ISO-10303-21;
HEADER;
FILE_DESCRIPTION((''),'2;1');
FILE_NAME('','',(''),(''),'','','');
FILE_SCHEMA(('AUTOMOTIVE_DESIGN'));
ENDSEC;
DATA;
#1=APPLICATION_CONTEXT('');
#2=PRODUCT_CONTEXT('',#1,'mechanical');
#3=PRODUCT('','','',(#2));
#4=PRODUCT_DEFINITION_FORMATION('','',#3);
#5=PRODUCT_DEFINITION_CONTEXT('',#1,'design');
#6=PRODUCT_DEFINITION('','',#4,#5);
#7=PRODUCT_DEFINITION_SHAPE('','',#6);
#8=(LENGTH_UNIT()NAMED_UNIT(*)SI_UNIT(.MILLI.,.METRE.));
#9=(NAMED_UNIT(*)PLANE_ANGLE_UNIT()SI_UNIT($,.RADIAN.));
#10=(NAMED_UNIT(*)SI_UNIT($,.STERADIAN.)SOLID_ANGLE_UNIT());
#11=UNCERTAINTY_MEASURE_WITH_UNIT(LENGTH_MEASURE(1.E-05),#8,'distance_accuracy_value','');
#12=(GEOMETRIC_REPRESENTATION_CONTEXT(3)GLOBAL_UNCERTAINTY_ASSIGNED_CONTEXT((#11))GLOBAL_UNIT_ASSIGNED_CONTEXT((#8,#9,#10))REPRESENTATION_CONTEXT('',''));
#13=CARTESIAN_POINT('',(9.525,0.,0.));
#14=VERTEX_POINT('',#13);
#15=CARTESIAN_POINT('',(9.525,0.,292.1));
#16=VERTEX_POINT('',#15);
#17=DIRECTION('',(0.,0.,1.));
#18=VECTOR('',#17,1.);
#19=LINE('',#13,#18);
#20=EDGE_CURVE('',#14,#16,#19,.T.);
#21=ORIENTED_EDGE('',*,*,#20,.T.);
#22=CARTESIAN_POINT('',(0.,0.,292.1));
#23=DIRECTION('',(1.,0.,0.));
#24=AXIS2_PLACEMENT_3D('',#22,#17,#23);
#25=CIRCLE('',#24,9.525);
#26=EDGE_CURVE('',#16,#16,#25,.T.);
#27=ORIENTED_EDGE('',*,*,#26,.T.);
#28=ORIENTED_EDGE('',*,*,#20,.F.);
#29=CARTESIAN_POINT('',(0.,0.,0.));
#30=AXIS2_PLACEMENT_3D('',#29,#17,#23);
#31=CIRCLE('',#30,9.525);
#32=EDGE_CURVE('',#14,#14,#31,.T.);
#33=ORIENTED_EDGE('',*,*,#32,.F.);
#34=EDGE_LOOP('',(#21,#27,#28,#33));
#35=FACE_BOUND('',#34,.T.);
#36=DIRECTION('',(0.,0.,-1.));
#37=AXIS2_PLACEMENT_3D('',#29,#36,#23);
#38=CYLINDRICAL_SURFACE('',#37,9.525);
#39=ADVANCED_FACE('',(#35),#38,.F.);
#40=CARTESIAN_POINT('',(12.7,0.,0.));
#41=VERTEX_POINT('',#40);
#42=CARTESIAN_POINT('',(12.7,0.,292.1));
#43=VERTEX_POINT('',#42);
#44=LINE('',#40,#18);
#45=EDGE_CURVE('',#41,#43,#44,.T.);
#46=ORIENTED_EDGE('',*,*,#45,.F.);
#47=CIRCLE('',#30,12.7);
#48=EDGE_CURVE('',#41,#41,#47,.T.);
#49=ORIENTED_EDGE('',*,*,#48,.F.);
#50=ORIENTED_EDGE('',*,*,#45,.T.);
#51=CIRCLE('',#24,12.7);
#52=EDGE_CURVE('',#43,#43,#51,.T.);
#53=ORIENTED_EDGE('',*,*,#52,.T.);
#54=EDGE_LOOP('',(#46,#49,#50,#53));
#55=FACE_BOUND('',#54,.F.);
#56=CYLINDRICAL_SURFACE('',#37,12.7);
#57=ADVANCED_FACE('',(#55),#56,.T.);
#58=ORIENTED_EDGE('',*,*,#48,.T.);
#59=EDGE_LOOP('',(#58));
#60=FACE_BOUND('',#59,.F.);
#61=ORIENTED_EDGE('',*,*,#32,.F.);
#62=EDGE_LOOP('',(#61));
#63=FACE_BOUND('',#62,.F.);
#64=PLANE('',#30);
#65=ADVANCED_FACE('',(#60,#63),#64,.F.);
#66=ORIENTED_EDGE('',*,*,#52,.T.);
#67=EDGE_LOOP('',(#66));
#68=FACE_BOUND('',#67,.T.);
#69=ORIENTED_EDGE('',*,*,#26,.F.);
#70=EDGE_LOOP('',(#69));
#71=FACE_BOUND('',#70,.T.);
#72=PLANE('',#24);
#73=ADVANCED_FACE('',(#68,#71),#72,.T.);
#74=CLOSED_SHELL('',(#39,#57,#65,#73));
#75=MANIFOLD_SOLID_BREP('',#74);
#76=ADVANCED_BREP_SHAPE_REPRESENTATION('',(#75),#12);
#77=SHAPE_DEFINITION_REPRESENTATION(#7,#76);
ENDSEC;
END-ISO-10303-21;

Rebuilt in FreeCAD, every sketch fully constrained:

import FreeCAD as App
import Part
import Sketcher

V = App.Vector
Q = App.Units.Quantity

doc = App.newDocument("Part")
body = doc.addObject("PartDesign::Body", "Body")

sketch1 = body.newObject("Sketcher::SketchObject", "Sketch")
sketch1.AttachmentSupport = (doc.getObject("XY_Plane"), [""])
sketch1.MapMode = "FlatFace"
sketch1.addGeometry(Part.Circle(V(0, 0, 0), V(0, 0, 1), 12.7), False)
sketch1.addGeometry(Part.Circle(V(0, 0, 0), V(0, 0, 1), 9.525), False)
sketch1.addConstraint(Sketcher.Constraint("Coincident", 0, 3, -1, 1))
sketch1.addConstraint(Sketcher.Constraint("Coincident", 1, 3, -1, 1))
sketch1.addConstraint(Sketcher.Constraint("Diameter", 0, Q("1 in")))
sketch1.addConstraint(Sketcher.Constraint("Diameter", 1, Q("0.75 in")))
pad1 = body.newObject("PartDesign::Pad", "Pad")
pad1.Profile = sketch1
pad1.Length = Q("11.5 in")

doc.recompute()
